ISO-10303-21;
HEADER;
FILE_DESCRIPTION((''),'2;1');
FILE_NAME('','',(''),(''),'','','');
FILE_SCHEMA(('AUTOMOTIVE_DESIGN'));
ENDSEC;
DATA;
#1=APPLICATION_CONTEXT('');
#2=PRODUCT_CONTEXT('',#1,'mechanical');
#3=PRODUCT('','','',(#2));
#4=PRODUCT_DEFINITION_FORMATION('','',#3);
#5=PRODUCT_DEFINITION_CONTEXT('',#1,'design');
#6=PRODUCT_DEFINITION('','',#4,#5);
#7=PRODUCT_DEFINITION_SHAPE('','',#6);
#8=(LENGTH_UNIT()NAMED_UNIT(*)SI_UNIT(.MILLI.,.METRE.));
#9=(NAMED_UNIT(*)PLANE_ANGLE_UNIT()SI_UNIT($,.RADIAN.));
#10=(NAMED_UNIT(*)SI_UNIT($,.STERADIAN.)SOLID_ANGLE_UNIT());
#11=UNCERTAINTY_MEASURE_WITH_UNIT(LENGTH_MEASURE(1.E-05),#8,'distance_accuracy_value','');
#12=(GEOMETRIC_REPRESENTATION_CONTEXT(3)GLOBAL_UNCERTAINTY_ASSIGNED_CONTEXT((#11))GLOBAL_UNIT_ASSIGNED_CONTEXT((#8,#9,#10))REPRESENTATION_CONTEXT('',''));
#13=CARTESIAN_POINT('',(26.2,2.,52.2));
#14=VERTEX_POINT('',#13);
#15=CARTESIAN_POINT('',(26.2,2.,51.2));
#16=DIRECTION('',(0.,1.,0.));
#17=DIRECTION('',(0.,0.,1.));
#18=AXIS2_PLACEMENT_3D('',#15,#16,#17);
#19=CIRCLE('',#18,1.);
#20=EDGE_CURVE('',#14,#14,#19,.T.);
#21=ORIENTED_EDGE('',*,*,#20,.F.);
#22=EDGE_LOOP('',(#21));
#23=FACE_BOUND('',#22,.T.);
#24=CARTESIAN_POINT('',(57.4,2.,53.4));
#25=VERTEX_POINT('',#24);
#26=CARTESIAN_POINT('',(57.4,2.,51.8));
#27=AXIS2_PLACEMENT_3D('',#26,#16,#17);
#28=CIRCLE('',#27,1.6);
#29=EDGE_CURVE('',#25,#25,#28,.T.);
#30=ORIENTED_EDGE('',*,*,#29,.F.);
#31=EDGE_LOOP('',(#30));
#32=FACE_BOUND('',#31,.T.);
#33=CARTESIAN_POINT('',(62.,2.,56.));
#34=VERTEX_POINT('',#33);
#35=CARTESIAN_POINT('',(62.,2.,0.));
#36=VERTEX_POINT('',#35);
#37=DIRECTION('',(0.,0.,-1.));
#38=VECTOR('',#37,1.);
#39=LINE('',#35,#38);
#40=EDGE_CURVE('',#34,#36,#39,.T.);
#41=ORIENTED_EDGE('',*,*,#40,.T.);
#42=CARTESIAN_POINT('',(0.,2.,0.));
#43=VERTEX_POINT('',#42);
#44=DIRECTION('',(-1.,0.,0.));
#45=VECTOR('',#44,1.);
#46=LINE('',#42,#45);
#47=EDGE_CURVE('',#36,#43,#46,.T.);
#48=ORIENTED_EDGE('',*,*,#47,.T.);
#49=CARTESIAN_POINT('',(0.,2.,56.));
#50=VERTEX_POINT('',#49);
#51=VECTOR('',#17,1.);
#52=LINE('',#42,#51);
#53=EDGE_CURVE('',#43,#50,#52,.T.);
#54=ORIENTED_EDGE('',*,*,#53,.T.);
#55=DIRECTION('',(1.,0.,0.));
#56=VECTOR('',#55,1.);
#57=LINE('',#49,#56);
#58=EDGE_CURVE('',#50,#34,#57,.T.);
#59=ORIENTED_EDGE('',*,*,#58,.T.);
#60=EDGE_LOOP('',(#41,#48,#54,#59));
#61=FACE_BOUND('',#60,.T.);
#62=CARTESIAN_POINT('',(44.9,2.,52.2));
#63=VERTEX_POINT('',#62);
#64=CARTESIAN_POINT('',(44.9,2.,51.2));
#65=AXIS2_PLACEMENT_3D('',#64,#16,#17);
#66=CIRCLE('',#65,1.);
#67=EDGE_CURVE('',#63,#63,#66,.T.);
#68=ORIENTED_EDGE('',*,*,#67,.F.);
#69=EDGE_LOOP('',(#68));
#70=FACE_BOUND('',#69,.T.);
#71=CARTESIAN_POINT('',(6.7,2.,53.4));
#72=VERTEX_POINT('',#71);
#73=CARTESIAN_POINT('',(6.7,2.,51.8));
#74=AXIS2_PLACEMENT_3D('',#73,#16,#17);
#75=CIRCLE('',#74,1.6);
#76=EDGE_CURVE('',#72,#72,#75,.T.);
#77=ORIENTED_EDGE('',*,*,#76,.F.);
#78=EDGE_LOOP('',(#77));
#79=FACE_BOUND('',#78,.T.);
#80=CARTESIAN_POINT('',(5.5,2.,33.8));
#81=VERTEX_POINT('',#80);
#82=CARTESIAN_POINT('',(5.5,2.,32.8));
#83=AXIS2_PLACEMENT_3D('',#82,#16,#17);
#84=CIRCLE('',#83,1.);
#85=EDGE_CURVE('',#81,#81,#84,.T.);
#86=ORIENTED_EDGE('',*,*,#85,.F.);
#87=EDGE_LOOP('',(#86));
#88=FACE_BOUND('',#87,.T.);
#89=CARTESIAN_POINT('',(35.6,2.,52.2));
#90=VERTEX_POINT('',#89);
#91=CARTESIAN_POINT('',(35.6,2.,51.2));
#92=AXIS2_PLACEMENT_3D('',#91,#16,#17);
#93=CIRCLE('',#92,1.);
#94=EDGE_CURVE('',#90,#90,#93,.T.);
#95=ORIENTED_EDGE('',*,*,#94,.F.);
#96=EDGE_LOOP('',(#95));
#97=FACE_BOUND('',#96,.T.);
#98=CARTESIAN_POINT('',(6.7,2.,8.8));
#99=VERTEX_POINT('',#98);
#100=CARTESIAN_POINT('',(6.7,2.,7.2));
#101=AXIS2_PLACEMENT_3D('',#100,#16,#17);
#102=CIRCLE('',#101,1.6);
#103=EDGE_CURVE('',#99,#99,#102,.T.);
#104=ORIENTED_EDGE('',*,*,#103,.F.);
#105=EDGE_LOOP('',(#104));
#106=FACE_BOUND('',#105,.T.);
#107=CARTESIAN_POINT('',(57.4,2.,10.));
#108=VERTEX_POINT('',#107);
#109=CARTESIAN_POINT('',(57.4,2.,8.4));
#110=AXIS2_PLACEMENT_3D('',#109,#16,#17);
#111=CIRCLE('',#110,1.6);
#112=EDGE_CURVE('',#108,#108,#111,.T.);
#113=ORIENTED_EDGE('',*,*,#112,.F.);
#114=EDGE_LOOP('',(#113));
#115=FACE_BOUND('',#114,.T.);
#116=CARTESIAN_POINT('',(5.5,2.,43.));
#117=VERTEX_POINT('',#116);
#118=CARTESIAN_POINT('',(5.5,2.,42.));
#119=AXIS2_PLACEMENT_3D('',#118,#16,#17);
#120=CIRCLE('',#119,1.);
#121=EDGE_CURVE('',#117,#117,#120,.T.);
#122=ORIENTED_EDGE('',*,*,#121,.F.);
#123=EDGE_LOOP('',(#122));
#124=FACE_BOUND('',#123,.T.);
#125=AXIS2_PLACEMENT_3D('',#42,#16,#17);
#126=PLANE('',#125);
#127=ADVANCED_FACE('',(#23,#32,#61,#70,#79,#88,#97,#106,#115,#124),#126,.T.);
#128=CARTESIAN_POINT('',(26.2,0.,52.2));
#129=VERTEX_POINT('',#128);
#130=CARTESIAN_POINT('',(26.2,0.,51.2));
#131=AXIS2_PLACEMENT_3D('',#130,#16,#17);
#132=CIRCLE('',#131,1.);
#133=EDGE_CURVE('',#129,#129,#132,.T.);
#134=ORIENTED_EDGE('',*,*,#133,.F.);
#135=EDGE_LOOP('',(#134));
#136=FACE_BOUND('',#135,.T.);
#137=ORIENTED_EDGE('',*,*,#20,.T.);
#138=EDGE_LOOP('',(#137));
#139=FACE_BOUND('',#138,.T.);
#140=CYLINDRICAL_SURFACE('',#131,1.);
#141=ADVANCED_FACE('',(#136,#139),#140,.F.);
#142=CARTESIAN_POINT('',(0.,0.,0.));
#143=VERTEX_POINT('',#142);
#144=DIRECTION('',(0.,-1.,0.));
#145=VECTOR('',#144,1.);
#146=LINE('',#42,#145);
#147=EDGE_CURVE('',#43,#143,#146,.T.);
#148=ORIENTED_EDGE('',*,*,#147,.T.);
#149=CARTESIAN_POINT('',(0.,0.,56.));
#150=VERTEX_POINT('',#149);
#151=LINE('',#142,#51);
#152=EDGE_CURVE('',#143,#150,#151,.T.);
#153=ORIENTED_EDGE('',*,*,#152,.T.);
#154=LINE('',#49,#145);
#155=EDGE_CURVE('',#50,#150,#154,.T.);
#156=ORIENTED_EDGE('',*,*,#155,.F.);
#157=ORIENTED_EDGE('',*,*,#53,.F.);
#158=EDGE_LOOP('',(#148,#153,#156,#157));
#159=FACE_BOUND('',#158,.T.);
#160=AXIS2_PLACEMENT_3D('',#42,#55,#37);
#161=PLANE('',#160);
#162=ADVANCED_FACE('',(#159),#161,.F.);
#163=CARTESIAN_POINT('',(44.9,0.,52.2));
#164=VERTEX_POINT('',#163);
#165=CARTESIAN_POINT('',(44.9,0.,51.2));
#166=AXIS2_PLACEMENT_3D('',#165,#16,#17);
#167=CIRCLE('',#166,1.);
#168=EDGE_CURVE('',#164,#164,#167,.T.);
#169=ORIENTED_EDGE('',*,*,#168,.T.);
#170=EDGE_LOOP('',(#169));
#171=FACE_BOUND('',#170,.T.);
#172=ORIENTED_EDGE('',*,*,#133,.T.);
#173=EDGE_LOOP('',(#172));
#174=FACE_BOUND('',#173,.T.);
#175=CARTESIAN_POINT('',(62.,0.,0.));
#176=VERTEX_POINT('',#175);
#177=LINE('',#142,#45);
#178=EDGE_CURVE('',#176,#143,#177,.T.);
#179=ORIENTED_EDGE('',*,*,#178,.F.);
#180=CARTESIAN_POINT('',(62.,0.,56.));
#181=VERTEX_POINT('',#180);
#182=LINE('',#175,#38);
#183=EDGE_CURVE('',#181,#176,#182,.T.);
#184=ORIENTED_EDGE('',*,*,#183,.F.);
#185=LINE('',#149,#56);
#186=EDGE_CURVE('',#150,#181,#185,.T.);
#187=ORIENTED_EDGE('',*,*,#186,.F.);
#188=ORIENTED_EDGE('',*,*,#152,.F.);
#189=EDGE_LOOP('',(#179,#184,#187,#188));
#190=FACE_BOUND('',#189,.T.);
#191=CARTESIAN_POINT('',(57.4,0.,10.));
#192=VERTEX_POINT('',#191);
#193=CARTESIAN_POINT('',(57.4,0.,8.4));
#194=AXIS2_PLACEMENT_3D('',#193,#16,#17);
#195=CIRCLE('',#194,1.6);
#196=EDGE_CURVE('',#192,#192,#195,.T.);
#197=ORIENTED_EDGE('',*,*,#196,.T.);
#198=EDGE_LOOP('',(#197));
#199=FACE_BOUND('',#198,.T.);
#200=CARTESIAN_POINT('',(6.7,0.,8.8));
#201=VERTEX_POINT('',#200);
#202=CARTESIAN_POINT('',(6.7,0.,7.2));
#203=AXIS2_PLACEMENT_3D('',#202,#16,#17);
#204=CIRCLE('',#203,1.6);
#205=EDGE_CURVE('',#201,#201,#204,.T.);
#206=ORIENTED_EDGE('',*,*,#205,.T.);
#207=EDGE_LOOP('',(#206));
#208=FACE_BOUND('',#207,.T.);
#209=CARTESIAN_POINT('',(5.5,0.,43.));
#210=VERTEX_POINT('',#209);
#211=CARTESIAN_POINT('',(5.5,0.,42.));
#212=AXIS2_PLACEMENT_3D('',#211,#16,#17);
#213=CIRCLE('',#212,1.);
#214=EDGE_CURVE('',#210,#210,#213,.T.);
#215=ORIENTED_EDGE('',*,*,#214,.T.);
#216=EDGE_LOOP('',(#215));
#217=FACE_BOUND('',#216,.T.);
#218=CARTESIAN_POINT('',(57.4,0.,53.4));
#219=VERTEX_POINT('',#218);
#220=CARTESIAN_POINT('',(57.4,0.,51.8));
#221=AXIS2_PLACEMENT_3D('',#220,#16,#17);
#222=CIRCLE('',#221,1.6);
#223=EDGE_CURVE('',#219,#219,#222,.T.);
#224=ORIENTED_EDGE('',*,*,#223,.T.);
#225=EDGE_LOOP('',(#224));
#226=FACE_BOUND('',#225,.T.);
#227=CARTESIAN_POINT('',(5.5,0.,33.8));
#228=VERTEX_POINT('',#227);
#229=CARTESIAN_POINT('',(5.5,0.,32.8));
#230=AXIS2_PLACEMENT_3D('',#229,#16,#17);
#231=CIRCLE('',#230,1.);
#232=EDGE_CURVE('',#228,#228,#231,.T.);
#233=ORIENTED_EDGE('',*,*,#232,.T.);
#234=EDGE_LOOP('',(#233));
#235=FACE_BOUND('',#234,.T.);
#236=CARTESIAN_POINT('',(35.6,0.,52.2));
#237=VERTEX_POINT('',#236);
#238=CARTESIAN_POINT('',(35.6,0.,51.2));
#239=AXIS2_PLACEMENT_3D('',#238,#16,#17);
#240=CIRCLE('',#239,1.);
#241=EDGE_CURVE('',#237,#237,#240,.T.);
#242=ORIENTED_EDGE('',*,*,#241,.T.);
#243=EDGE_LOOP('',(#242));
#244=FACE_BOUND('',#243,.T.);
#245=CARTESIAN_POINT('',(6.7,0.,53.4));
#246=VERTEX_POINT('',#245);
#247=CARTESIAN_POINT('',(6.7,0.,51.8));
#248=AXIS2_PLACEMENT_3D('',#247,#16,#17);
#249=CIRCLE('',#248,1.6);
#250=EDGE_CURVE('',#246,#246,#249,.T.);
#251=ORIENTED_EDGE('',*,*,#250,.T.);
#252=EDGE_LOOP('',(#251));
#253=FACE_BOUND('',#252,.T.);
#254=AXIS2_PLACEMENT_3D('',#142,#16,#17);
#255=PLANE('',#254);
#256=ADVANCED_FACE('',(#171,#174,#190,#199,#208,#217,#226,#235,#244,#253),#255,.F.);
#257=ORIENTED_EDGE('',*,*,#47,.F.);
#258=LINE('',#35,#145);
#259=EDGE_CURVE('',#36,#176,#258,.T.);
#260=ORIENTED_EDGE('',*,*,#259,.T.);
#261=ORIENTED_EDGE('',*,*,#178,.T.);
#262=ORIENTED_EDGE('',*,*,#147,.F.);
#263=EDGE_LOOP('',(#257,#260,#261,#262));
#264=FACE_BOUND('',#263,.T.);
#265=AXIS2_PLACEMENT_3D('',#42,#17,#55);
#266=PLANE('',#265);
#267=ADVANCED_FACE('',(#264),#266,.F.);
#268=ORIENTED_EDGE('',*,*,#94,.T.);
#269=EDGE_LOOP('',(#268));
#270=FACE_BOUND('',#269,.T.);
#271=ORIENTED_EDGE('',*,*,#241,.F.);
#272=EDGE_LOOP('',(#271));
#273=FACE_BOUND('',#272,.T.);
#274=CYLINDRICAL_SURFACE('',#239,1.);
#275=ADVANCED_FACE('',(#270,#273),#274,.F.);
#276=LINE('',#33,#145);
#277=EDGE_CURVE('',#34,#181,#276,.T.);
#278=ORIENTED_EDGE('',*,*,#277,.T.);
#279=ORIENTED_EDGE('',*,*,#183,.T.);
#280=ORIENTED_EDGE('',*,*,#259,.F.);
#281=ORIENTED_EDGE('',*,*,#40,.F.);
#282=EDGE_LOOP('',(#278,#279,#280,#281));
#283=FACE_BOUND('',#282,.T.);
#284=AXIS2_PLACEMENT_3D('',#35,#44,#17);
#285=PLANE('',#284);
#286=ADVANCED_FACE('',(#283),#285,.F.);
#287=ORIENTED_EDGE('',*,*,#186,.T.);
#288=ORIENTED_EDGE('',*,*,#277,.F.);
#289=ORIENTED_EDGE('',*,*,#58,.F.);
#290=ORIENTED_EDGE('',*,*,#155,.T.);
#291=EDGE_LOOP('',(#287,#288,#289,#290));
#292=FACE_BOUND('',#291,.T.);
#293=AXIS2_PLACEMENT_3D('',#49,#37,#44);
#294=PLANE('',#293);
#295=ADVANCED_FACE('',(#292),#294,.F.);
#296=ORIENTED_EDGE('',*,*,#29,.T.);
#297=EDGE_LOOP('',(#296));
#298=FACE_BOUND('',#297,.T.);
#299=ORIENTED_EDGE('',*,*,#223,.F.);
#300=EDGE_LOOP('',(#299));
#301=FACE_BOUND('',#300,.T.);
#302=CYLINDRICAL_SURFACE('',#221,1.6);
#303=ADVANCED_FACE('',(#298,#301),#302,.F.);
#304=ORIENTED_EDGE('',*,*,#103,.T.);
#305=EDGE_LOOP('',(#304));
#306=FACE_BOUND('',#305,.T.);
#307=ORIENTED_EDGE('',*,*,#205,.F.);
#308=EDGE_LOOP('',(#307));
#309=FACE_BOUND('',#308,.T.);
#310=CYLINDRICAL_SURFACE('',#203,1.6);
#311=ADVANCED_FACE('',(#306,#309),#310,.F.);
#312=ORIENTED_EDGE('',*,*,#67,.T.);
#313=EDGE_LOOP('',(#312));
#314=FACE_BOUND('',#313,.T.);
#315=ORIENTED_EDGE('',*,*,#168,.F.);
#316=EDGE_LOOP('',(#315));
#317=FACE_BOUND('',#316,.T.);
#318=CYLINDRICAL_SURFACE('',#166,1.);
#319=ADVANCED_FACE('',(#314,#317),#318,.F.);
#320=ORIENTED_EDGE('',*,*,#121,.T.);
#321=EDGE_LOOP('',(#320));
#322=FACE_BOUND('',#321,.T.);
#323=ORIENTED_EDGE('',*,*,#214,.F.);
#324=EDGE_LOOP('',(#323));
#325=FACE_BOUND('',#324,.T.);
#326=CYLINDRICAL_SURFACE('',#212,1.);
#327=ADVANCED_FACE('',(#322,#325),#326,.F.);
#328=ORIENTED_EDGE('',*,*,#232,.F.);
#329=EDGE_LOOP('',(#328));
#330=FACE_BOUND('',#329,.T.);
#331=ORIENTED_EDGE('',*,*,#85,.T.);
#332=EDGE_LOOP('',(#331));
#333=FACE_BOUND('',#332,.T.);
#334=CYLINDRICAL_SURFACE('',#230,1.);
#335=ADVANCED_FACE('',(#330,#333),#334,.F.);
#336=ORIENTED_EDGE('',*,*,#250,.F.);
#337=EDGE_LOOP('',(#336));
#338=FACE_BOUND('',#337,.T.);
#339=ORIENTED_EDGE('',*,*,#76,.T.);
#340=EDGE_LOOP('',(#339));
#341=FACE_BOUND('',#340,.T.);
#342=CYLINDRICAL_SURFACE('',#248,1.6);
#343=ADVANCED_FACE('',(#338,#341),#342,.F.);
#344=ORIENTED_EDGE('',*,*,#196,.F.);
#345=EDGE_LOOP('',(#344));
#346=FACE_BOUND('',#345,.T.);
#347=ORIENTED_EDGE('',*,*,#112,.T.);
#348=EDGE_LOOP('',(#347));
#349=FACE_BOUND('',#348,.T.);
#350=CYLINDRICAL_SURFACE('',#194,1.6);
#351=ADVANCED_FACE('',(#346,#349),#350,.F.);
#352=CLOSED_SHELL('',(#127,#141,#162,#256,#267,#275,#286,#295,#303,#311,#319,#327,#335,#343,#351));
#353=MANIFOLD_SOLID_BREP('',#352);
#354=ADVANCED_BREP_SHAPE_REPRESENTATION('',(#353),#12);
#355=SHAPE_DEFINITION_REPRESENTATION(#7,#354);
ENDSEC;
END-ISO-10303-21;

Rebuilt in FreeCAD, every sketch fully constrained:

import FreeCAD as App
import Part
import Sketcher

V = App.Vector
Q = App.Units.Quantity


def add_polygon(sketch, points):
    """Adds a closed chain of lines whose ends are joined by coincident constraints."""
    first, n = sketch.GeometryCount, len(points)
    for a, b in zip(points, points[1:] + points[:1]):
        sketch.addGeometry(Part.LineSegment(App.Vector(*a, 0), App.Vector(*b, 0)), False)
    for i in range(n):
        sketch.addConstraint(Sketcher.Constraint("Coincident", first + i, 2, first + (i + 1) % n, 1))

doc = App.newDocument("Part")
body = doc.addObject("PartDesign::Body", "Body")

# Sketch on XZ plane
sketch1 = body.newObject("Sketcher::SketchObject", "Sketch")
sketch1.AttachmentSupport = (doc.getObject("XZ_Plane"), [""])
sketch1.MapMode = "FlatFace"
add_polygon(sketch1, [(0, 0), (0, 56), (62, 56), (62, 0)])  # lines 0-3
sketch1.addConstraint(Sketcher.Constraint("Vertical", 0))
sketch1.addConstraint(Sketcher.Constraint("Horizontal", 1))
sketch1.addConstraint(Sketcher.Constraint("Vertical", 2))
sketch1.addConstraint(Sketcher.Constraint("Horizontal", 3))
sketch1.addConstraint(Sketcher.Constraint("Coincident", 3, 2, -1, 1))
sketch1.addConstraint(Sketcher.Constraint("DistanceX", 1, 1, 1, 2, Q("62 mm")))
sketch1.addConstraint(Sketcher.Constraint("DistanceY", 0, 1, 0, 2, Q("56 mm")))
pad1 = body.newObject("PartDesign::Pad", "Pad")
pad1.Profile = sketch1
pad1.Length = 2
pad1.Reversed = True

# Sketch on XZ plane
sketch2 = body.newObject("Sketcher::SketchObject", "Sketch001")
sketch2.AttachmentSupport = (doc.getObject("XZ_Plane"), [""])
sketch2.MapMode = "FlatFace"
sketch2.AttachmentOffset = App.Placement(V(0, 0, -2), App.Rotation())
sketch2.addGeometry(Part.Circle(V(6.7, 7.2, 0), V(0, 0, 1), 1.6), False)
sketch2.addGeometry(Part.Circle(V(6.7, 51.8, 0), V(0, 0, 1), 1.6), False)
sketch2.addGeometry(Part.Circle(V(57.4, 51.8, 0), V(0, 0, 1), 1.6), False)
sketch2.addGeometry(Part.Circle(V(57.4, 8.4, 0), V(0, 0, 1), 1.6), False)
sketch2.addConstraint(Sketcher.Constraint("Equal", 0, 1))
sketch2.addConstraint(Sketcher.Constraint("Equal", 1, 2))
sketch2.addConstraint(Sketcher.Constraint("Equal", 2, 3))
sketch2.addConstraint(Sketcher.Constraint("Horizontal", 1, 3, 2, 3))
sketch2.addConstraint(Sketcher.Constraint("Vertical", 0, 3, 1, 3))
sketch2.addConstraint(Sketcher.Constraint("Vertical", 2, 3, 3, 3))
sketch2.addConstraint(Sketcher.Constraint("Diameter", 0, Q("3.2 mm")))
sketch2.addConstraint(Sketcher.Constraint("DistanceX", -1, 1, 0, 3, Q("6.7 mm")))
sketch2.addConstraint(Sketcher.Constraint("DistanceY", -1, 1, 0, 3, Q("7.2 mm")))
sketch2.addConstraint(Sketcher.Constraint("DistanceY", -1, 1, 1, 3, Q("51.8 mm")))
sketch2.addConstraint(Sketcher.Constraint("DistanceX", -1, 1, 2, 3, Q("57.4 mm")))
sketch2.addConstraint(Sketcher.Constraint("DistanceY", -1, 1, 3, 3, Q("8.4 mm")))
pocket1 = body.newObject("PartDesign::Pocket", "Pocket")
pocket1.Profile = sketch2
pocket1.Length = 2
pocket1.Reversed = True

# Sketch on XZ plane
sketch3 = body.newObject("Sketcher::SketchObject", "Sketch002")
sketch3.AttachmentSupport = (doc.getObject("XZ_Plane"), [""])
sketch3.MapMode = "FlatFace"
sketch3.AttachmentOffset = App.Placement(V(0, 0, -2), App.Rotation())
sketch3.addGeometry(Part.Circle(V(5.5, 32.8, 0), V(0, 0, 1), 1), False)
sketch3.addGeometry(Part.Circle(V(5.5, 42, 0), V(0, 0, 1), 1), False)
sketch3.addGeometry(Part.Circle(V(26.2, 51.2, 0), V(0, 0, 1), 1), False)
sketch3.addGeometry(Part.Circle(V(35.6, 51.2, 0), V(0, 0, 1), 1), False)
sketch3.addGeometry(Part.Circle(V(44.9, 51.2, 0), V(0, 0, 1), 1), False)
sketch3.addConstraint(Sketcher.Constraint("Equal", 0, 1))
sketch3.addConstraint(Sketcher.Constraint("Equal", 1, 2))
sketch3.addConstraint(Sketcher.Constraint("Equal", 2, 3))
sketch3.addConstraint(Sketcher.Constraint("Equal", 3, 4))
sketch3.addConstraint(Sketcher.Constraint("Horizontal", 2, 3, 3, 3))
sketch3.addConstraint(Sketcher.Constraint("Horizontal", 3, 3, 4, 3))
sketch3.addConstraint(Sketcher.Constraint("Vertical", 0, 3, 1, 3))
sketch3.addConstraint(Sketcher.Constraint("Diameter", 0, Q("2 mm")))
sketch3.addConstraint(Sketcher.Constraint("DistanceY", -1, 1, 1, 3, Q("42 mm")))
sketch3.addConstraint(Sketcher.Constraint("DistanceX", -1, 1, 0, 3, Q("5.5 mm")))
sketch3.addConstraint(Sketcher.Constraint("DistanceY", -1, 1, 0, 3, Q("32.8 mm")))
sketch3.addConstraint(Sketcher.Constraint("DistanceX", -1, 1, 2, 3, Q("26.2 mm")))
sketch3.addConstraint(Sketcher.Constraint("DistanceY", -1, 1, 2, 3, Q("51.2 mm")))
sketch3.addConstraint(Sketcher.Constraint("DistanceX", -1, 1, 3, 3, Q("35.6 mm")))
sketch3.addConstraint(Sketcher.Constraint("DistanceX", -1, 1, 4, 3, Q("44.9 mm")))
pocket2 = body.newObject("PartDesign::Pocket", "Pocket001")
pocket2.Profile = sketch3
pocket2.Type = "ThroughAll"
pocket2.Reversed = True

doc.recompute()
